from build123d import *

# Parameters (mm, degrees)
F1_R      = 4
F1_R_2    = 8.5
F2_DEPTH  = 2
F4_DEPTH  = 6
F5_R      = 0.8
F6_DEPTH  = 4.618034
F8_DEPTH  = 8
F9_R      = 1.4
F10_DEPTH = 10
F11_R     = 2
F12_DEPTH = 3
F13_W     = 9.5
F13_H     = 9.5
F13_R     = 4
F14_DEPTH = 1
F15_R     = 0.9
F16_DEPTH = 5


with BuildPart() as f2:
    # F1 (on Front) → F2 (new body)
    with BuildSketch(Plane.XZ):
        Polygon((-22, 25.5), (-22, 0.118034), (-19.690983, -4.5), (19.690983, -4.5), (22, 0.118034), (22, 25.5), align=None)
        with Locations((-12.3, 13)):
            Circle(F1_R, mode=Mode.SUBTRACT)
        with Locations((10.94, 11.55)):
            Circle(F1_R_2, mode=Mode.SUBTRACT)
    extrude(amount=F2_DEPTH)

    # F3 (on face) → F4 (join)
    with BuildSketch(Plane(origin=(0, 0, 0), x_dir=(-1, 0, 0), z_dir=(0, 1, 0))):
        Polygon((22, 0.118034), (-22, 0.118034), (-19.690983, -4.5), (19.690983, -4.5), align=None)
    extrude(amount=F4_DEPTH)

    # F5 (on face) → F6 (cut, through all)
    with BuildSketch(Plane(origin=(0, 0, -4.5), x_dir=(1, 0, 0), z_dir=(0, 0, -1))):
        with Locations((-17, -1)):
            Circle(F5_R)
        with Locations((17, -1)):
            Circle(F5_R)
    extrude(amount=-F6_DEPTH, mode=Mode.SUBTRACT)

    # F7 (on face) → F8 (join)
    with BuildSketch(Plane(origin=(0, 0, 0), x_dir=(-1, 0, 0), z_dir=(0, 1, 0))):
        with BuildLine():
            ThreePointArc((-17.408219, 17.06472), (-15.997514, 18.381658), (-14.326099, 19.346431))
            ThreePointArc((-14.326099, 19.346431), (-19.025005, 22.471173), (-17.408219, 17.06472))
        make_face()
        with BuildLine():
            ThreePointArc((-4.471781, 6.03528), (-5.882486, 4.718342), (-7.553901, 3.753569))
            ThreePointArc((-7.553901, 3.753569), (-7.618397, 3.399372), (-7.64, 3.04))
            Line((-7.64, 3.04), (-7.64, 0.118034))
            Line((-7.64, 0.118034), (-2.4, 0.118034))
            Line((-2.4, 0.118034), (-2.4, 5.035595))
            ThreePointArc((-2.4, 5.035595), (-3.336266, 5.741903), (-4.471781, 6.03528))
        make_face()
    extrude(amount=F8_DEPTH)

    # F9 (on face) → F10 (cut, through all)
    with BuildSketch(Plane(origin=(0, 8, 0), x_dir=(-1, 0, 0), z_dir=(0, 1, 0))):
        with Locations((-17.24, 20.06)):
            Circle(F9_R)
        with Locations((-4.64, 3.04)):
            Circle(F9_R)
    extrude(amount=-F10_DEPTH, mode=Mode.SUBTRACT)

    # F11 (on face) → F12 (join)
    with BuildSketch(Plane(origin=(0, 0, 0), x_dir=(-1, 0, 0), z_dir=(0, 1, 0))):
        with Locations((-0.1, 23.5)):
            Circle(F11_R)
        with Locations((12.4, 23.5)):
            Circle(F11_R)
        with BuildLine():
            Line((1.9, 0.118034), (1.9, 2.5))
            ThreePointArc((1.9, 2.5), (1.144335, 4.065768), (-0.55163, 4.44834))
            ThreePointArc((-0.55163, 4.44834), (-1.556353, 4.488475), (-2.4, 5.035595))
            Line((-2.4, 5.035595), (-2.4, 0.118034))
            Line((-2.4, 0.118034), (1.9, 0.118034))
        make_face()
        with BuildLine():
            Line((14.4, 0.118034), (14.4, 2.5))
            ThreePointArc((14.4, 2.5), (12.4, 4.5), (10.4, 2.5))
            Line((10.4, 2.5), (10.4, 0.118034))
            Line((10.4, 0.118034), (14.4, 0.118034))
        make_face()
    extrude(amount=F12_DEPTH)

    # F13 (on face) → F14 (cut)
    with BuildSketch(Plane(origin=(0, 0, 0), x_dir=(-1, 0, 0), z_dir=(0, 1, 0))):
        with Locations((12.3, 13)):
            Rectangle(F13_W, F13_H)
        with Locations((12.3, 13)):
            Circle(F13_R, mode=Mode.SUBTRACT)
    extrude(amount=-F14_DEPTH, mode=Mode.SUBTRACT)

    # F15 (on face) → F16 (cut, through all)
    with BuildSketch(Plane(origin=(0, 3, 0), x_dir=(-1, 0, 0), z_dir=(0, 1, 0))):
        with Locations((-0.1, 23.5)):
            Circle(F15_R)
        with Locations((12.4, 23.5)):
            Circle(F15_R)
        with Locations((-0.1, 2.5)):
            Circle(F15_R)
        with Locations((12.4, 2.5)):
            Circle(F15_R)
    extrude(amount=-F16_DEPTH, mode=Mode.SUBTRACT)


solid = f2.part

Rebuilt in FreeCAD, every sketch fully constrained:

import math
import FreeCAD as App
import Part
import Sketcher

V = App.Vector
Q = App.Units.Quantity


def add_polygon(sketch, points):
    """Adds a closed chain of lines whose ends are joined by coincident constraints."""
    first, n = sketch.GeometryCount, len(points)
    for a, b in zip(points, points[1:] + points[:1]):
        sketch.addGeometry(Part.LineSegment(App.Vector(*a, 0), App.Vector(*b, 0)), False)
    for i in range(n):
        sketch.addConstraint(Sketcher.Constraint("Coincident", first + i, 2, first + (i + 1) % n, 1))

doc = App.newDocument("Part")
body = doc.addObject("PartDesign::Body", "Body")

sketch1 = body.newObject("Sketcher::SketchObject", "Sketch")
sketch1.AttachmentSupport = (doc.getObject("XZ_Plane"), [""])
sketch1.MapMode = "FlatFace"
add_polygon(sketch1, [(-22, 25.5), (-22, 0.1), (-19.7, -4.5), (19.7, -4.5), (22, 0.1), (22, 25.5)])
sketch1.addGeometry(Part.Circle(V(-12.3, 13, 0), V(0, 0, 1), 4), False)
sketch1.addGeometry(Part.Circle(V(10.9, 11.6, 0), V(0, 0, 1), 8.5), False)
sketch1.addConstraint(Sketcher.Constraint("Vertical", 0))
sketch1.addConstraint(Sketcher.Constraint("Horizontal", 2))
sketch1.addConstraint(Sketcher.Constraint("Vertical", 4))
sketch1.addConstraint(Sketcher.Constraint("Horizontal", 5))
sketch1.addConstraint(Sketcher.Constraint("Symmetric", 0, 2, 3, 2, -2))
sketch1.addConstraint(Sketcher.Constraint("Equal", 1, 3))
sketch1.addConstraint(Sketcher.Constraint("Diameter", 6, Q("8 mm")))
sketch1.addConstraint(Sketcher.Constraint("Diameter", 7, Q("17 mm")))
sketch1.addConstraint(Sketcher.Constraint("DistanceX", 5, 2, 5, 1, Q("44 mm")))
sketch1.addConstraint(Sketcher.Constraint("DistanceY", -1, 1, 6, 3, Q("13 mm")))
sketch1.addConstraint(Sketcher.Constraint("DistanceY", 2, 2, 4, 2, Q("30 mm")))
sketch1.addConstraint(Sketcher.Constraint("DistanceX", 6, 3, -1, 1, Q("12.3 mm")))
sketch1.addConstraint(Sketcher.Constraint("DistanceY", 1, 2, -1, 1, Q("4.5 mm")))
sketch1.addConstraint(Sketcher.Constraint("DistanceX", -1, 1, 7, 3, Q("10.94 mm")))
sketch1.addConstraint(Sketcher.Constraint("DistanceY", -1, 1, 7, 3, Q("11.55 mm")))
sketch1.addConstraint(Sketcher.Constraint("Distance", 1, Q("5.163119 mm")))
sketch1.addConstraint(Sketcher.Constraint("DistanceX", 2, 1, 2, 2, Q("39.381966 mm")))
pad1 = body.newObject("PartDesign::Pad", "Pad")
pad1.Profile = sketch1
pad1.Length = 2

sketch2 = body.newObject("Sketcher::SketchObject", "Sketch001")
sketch2.AttachmentSupport = (doc.getObject("XZ_Plane"), [""])
sketch2.MapMode = "FlatFace"
add_polygon(sketch2, [(-22, 0), (22, 0), (20, -4), (-20, -4)])
sketch2.addConstraint(Sketcher.Constraint("Horizontal", 0))
sketch2.addConstraint(Sketcher.Constraint("Horizontal", 2))
sketch2.addConstraint(Sketcher.Constraint("Equal", 1, 3))
sketch2.addConstraint(Sketcher.Constraint("DistanceX", 0, 1, 0, 2, Q("44 mm")))
sketch2.addConstraint(Sketcher.Constraint("DistanceX", -1, 1, 0, 2, Q("22 mm")))
sketch2.addConstraint(Sketcher.Constraint("DistanceY", 1, 2, -1, 1, Q("4.5 mm")))
sketch2.addConstraint(Sketcher.Constraint("Distance", 1, Q("5.163119 mm")))
sketch2.addConstraint(Sketcher.Constraint("DistanceX", 2, 2, 2, 1, Q("39.381966 mm")))
pad2 = body.newObject("PartDesign::Pad", "Pad001")
pad2.Profile = sketch2
pad2.Length = 6
pad2.Reversed = True

sketch3 = body.newObject("Sketcher::SketchObject", "Sketch002")
sketch3.AttachmentSupport = (doc.getObject("XY_Plane"), [""])
sketch3.MapMode = "FlatFace"
sketch3.AttachmentOffset = App.Placement(V(0, 0, -4.5), App.Rotation())
sketch3.addGeometry(Part.Circle(V(-17, 1, 0), V(0, 0, 1), 0.8), False)
sketch3.addGeometry(Part.Circle(V(17, 1, 0), V(0, 0, 1), 0.8), False)
sketch3.addConstraint(Sketcher.Constraint("Equal", 0, 1))
sketch3.addConstraint(Sketcher.Constraint("Symmetric", 0, 3, 1, 3, -2))
sketch3.addConstraint(Sketcher.Constraint("Diameter", 0, Q("1.6 mm")))
sketch3.addConstraint(Sketcher.Constraint("DistanceX", 0, 3, -1, 1, Q("17 mm")))
sketch3.addConstraint(Sketcher.Constraint("DistanceY", -1, 1, 0, 3, Q("1 mm")))
pocket1 = body.newObject("PartDesign::Pocket", "Pocket")
pocket1.Profile = sketch3
pocket1.Type = "ThroughAll"
pocket1.Reversed = True

sketch4 = body.newObject("Sketcher::SketchObject", "Sketch003")
sketch4.AttachmentSupport = (doc.getObject("XZ_Plane"), [""])
sketch4.MapMode = "FlatFace"
sketch4.addGeometry(Part.ArcOfCircle(Part.Circle(V(10.9, 11.6, 0), V(0, 0, 1), 8.5), math.radians(40), math.radians(67)), False)
sketch4.addGeometry(Part.ArcOfCircle(Part.Circle(V(17.2, 20.1, 0), V(0, 0, 1), 3), math.radians(-87), math.radians(194)), False)
sketch4.addGeometry(Part.ArcOfCircle(Part.Circle(V(10.9, 11.5, 0), V(0, 0, 1), 8.5), math.radians(-140), math.radians(-113)), False)
sketch4.addGeometry(Part.ArcOfCircle(Part.Circle(V(4.6, 3, 0), V(0, 0, 1), 3), math.radians(0), math.radians(13.76)), False)
sketch4.addGeometry(Part.LineSegment(V(7.6, 3, 0), V(7.6, 0.1, 0)), False)
sketch4.addGeometry(Part.LineSegment(V(7.6, 0.1, 0), V(2.4, 0.1, 0)), False)
sketch4.addGeometry(Part.LineSegment(V(2.4, 0.1, 0), V(2.4, 5, 0)), False)
sketch4.addGeometry(Part.ArcOfCircle(Part.Circle(V(4.6, 3, 0), V(0, 0, 1), 3), math.radians(93), math.radians(138)), False)
sketch4.addConstraint(Sketcher.Constraint("Coincident", 0, 1, 1, 1))
sketch4.addConstraint(Sketcher.Constraint("Coincident", 1, 2, 0, 2))
sketch4.addConstraint(Sketcher.Constraint("Coincident", 2, 2, 3, 2))
sketch4.addConstraint(Sketcher.Constraint("Coincident", 3, 1, 4, 1))
sketch4.addConstraint(Sketcher.Constraint("Coincident", 4, 2, 5, 1))
sketch4.addConstraint(Sketcher.Constraint("Coincident", 5, 2, 6, 1))
sketch4.addConstraint(Sketcher.Constraint("Coincident", 6, 2, 7, 2))
sketch4.addConstraint(Sketcher.Constraint("Coincident", 7, 1, 2, 1))
sketch4.addConstraint(Sketcher.Constraint("Vertical", 4))
sketch4.addConstraint(Sketcher.Constraint("Horizontal", 5))
sketch4.addConstraint(Sketcher.Constraint("Vertical", 6))
sketch4.addConstraint(Sketcher.Constraint("Coincident", 2, 3, 0, 3))
sketch4.addConstraint(Sketcher.Constraint("Equal", 0, 2))
sketch4.addConstraint(Sketcher.Constraint("Radius", 1, Q("3 mm")))
sketch4.addConstraint(Sketcher.Constraint("Radius", 0, Q("8.499998 mm")))
sketch4.addConstraint(Sketcher.Constraint("DistanceX", 5, 2, 5, 1, Q("5.24 mm")))
sketch4.addConstraint(Sketcher.Constraint("DistanceX", -1, 1, 5, 2, Q("2.4 mm")))
sketch4.addConstraint(Sketcher.Constraint("DistanceX", 0, 3, 1, 3, Q("6.3 mm")))
sketch4.addConstraint(Sketcher.Constraint("DistanceX", 3, 1, 2, 3, Q("3.3 mm")))
sketch4.addConstraint(Sketcher.Constraint("DistanceY", -1, 1, 0, 3, Q("11.550002 mm")))
sketch4.addConstraint(Sketcher.Constraint("DistanceY", -1, 1, 1, 3, Q("20.06 mm")))
sketch4.addConstraint(Sketcher.Constraint("DistanceY", -1, 1, 3, 1, Q("3.04 mm")))
sketch4.addConstraint(Sketcher.Constraint("Radius", 3, Q("3.000068 mm")))
sketch4.addConstraint(Sketcher.Constraint("Radius", 7, Q("2.999995 mm")))
sketch4.addConstraint(Sketcher.Constraint("DistanceY", 6, 1, 6, 2, Q("4.917561 mm")))
sketch4.addConstraint(Sketcher.Constraint("DistanceX", -1, 1, 2, 2, Q("7.553901 mm")))
sketch4.addConstraint(Sketcher.Constraint("DistanceX", 7, 3, 1, 2, Q("9.686101 mm")))
sketch4.addConstraint(Sketcher.Constraint("DistanceY", 4, 2, 4, 1, Q("2.921966 mm")))
pad3 = body.newObject("PartDesign::Pad", "Pad002")
pad3.Profile = sketch4
pad3.Length = 8
pad3.Reversed = True

sketch5 = body.newObject("Sketcher::SketchObject", "Sketch004")
sketch5.AttachmentSupport = (doc.getObject("XZ_Plane"), [""])
sketch5.MapMode = "FlatFace"
sketch5.AttachmentOffset = App.Placement(V(0, 0, -8), App.Rotation())
sketch5.addGeometry(Part.Circle(V(17.2, 20.1, 0), V(0, 0, 1), 1.4), False)
sketch5.addGeometry(Part.Circle(V(4.6, 3, 0), V(0, 0, 1), 1.4), False)
sketch5.addConstraint(Sketcher.Constraint("Equal", 0, 1))
sketch5.addConstraint(Sketcher.Constraint("Diameter", 0, Q("2.8 mm")))
sketch5.addConstraint(Sketcher.Constraint("DistanceX", 1, 3, 0, 3, Q("12.6 mm")))
sketch5.addConstraint(Sketcher.Constraint("DistanceX", -1, 1, 0, 3, Q("17.24 mm")))
sketch5.addConstraint(Sketcher.Constraint("DistanceY", -1, 1, 0, 3, Q("20.06 mm")))
sketch5.addConstraint(Sketcher.Constraint("DistanceY", -1, 1, 1, 3, Q("3.04 mm")))
pocket2 = body.newObject("PartDesign::Pocket", "Pocket001")
pocket2.Profile = sketch5
pocket2.Type = "ThroughAll"
pocket2.Reversed = True

sketch6 = body.newObject("Sketcher::SketchObject", "Sketch005")
sketch6.AttachmentSupport = (doc.getObject("XZ_Plane"), [""])
sketch6.MapMode = "FlatFace"
sketch6.addGeometry(Part.Circle(V(0.1, 23.5, 0), V(0, 0, 1), 2), False)
sketch6.addGeometry(Part.Circle(V(-12.4, 23.5, 0), V(0, 0, 1), 2), False)
sketch6.addGeometry(Part.LineSegment(V(-1.9, 0.1, 0), V(-1.9, 2.5, 0)), False)
sketch6.addGeometry(Part.ArcOfCircle(Part.Circle(V(0.1, 2.5, 0), V(0, 0, 1), 2), math.radians(77), math.radians(180)), False)
sketch6.addGeometry(Part.ArcOfCircle(Part.Circle(V(1, 6.3, 0), V(0, 0, 1), 1.9), math.radians(-103), math.radians(-42)), False)
sketch6.addGeometry(Part.LineSegment(V(2.4, 5, 0), V(2.4, 0.1, 0)), False)
sketch6.addGeometry(Part.LineSegment(V(2.4, 0.1, 0), V(-1.9, 0.1, 0)), False)
sketch6.addGeometry(Part.LineSegment(V(-14.4, 0.1, 0), V(-14.4, 2.5, 0)), False)
sketch6.addGeometry(Part.ArcOfCircle(Part.Circle(V(-12.4, 2.5, 0), V(0, 0, 1), 2), math.radians(0), math.radians(180)), False)
sketch6.addGeometry(Part.LineSegment(V(-10.4, 2.5, 0), V(-10.4, 0.1, 0)), False)
sketch6.addGeometry(Part.LineSegment(V(-10.4, 0.1, 0), V(-14.4, 0.1, 0)), False)
sketch6.addConstraint(Sketcher.Constraint("Tangent", 2, 2, 3, 2))
sketch6.addConstraint(Sketcher.Constraint("Tangent", 3, 1, 4, 1))
sketch6.addConstraint(Sketcher.Constraint("Coincident", 4, 2, 5, 1))
sketch6.addConstraint(Sketcher.Constraint("Coincident", 5, 2, 6, 1))
sketch6.addConstraint(Sketcher.Constraint("Coincident", 6, 2, 2, 1))
sketch6.addConstraint(Sketcher.Constraint("Tangent", 7, 2, 8, 2))
sketch6.addConstraint(Sketcher.Constraint("Tangent", 8, 1, 9, 1))
sketch6.addConstraint(Sketcher.Constraint("Coincident", 9, 2, 10, 1))
sketch6.addConstraint(Sketcher.Constraint("Coincident", 10, 2, 7, 1))
sketch6.addConstraint(Sketcher.Constraint("Vertical", 2))
sketch6.addConstraint(Sketcher.Constraint("Vertical", 5))
sketch6.addConstraint(Sketcher.Constraint("Horizontal", 6))
sketch6.addConstraint(Sketcher.Constraint("Vertical", 7))
sketch6.addConstraint(Sketcher.Constraint("Vertical", 9))
sketch6.addConstraint(Sketcher.Constraint("Horizontal", 10))
sketch6.addConstraint(Sketcher.Constraint("Equal", 0, 1))
sketch6.addConstraint(Sketcher.Constraint("Equal", 1, 3))
sketch6.addConstraint(Sketcher.Constraint("Equal", 3, 8))
sketch6.addConstraint(Sketcher.Constraint("Horizontal", 0, 3, 1, 3))
sketch6.addConstraint(Sketcher.Constraint("Horizontal", 3, 3, 8, 3))
sketch6.addConstraint(Sketcher.Constraint("Horizontal", 6, 2, 9, 2))
sketch6.addConstraint(Sketcher.Constraint("Vertical", 0, 3, 3, 3))
sketch6.addConstraint(Sketcher.Constraint("Vertical", 1, 3, 8, 3))
sketch6.addConstraint(Sketcher.Constraint("Diameter", 0, Q("4 mm")))
sketch6.addConstraint(Sketcher.Constraint("DistanceX", 6, 2, 6, 1, Q("4.3 mm")))
sketch6.addConstraint(Sketcher.Constraint("DistanceY", 3, 3, 0, 3, Q("21 mm")))
sketch6.addConstraint(Sketcher.Constraint("DistanceX", -1, 1, 0, 3, Q("0.1 mm")))
sketch6.addConstraint(Sketcher.Constraint("DistanceY", -1, 1, 0, 3, Q("23.5 mm")))
sketch6.addConstraint(Sketcher.Constraint("DistanceX", 1, 3, -1, 1, Q("12.4 mm")))
sketch6.addConstraint(Sketcher.Constraint("Radius", 4, Q("1.900676 mm")))
sketch6.addConstraint(Sketcher.Constraint("DistanceY", 5, 2, 5, 1, Q("4.917561 mm")))
sketch6.addConstraint(Sketcher.Constraint("DistanceX", 3, 1, 4, 3, Q("0.429199 mm")))
pad4 = body.newObject("PartDesign::Pad", "Pad003")
pad4.Profile = sketch6
pad4.Length = 3
pad4.Reversed = True

sketch7 = body.newObject("Sketcher::SketchObject", "Sketch006")
sketch7.AttachmentSupport = (doc.getObject("XZ_Plane"), [""])
sketch7.MapMode = "FlatFace"
add_polygon(sketch7, [(-7.5, 17.8), (-7.5, 8.2), (-17.1, 8.2), (-17.1, 17.8)])
sketch7.addGeometry(Part.Circle(V(-12.3, 13, 0), V(0, 0, 1), 4), False)
sketch7.addConstraint(Sketcher.Constraint("Vertical", 0))
sketch7.addConstraint(Sketcher.Constraint("Horizontal", 1))
sketch7.addConstraint(Sketcher.Constraint("Vertical", 2))
sketch7.addConstraint(Sketcher.Constraint("Horizontal", 3))
sketch7.addConstraint(Sketcher.Constraint("Equal", 3, 0))
sketch7.addConstraint(Sketcher.Constraint("Diameter", 4, Q("8 mm")))
sketch7.addConstraint(Sketcher.Constraint("DistanceX", 1, 2, 1, 1, Q("9.5 mm")))
sketch7.addConstraint(Sketcher.Constraint("DistanceY", -1, 1, 4, 3, Q("13 mm")))
sketch7.addConstraint(Sketcher.Constraint("DistanceX", 4, 3, -1, 1, Q("12.3 mm")))
sketch7.addConstraint(Sketcher.Constraint("DistanceX", 0, 2, -1, 1, Q("7.55 mm")))
sketch7.addConstraint(Sketcher.Constraint("DistanceY", -1, 1, 0, 2, Q("8.25 mm")))
pocket3 = body.newObject("PartDesign::Pocket", "Pocket002")
pocket3.Profile = sketch7
pocket3.Length = 1
pocket3.Reversed = True

sketch8 = body.newObject("Sketcher::SketchObject", "Sketch007")
sketch8.AttachmentSupport = (doc.getObject("XZ_Plane"), [""])
sketch8.MapMode = "FlatFace"
sketch8.AttachmentOffset = App.Placement(V(0, 0, -3), App.Rotation())
sketch8.addGeometry(Part.Circle(V(0.1, 23.5, 0), V(0, 0, 1), 0.9), False)
sketch8.addGeometry(Part.Circle(V(-12.4, 23.5, 0), V(0, 0, 1), 0.9), False)
sketch8.addGeometry(Part.Circle(V(0.1, 2.5, 0), V(0, 0, 1), 0.9), False)
sketch8.addGeometry(Part.Circle(V(-12.4, 2.5, 0), V(0, 0, 1), 0.9), False)
sketch8.addConstraint(Sketcher.Constraint("Equal", 0, 1))
sketch8.addConstraint(Sketcher.Constraint("Equal", 1, 2))
sketch8.addConstraint(Sketcher.Constraint("Equal", 2, 3))
sketch8.addConstraint(Sketcher.Constraint("Horizontal", 0, 3, 1, 3))
sketch8.addConstraint(Sketcher.Constraint("Horizontal", 2, 3, 3, 3))
sketch8.addConstraint(Sketcher.Constraint("Vertical", 0, 3, 2, 3))
sketch8.addConstraint(Sketcher.Constraint("Vertical", 1, 3, 3, 3))
sketch8.addConstraint(Sketcher.Constraint("Diameter", 0, Q("1.8 mm")))
sketch8.addConstraint(Sketcher.Constraint("DistanceY", 2, 3, 0, 3, Q("21 mm")))
sketch8.addConstraint(Sketcher.Constraint("DistanceX", -1, 1, 0, 3, Q("0.1 mm")))
sketch8.addConstraint(Sketcher.Constraint("DistanceY", -1, 1, 0, 3, Q("23.5 mm")))
sketch8.addConstraint(Sketcher.Constraint("DistanceX", 1, 3, -1, 1, Q("12.4 mm")))
pocket4 = body.newObject("PartDesign::Pocket", "Pocket003")
pocket4.Profile = sketch8
pocket4.Type = "ThroughAll"
pocket4.Reversed = True

doc.recompute()
